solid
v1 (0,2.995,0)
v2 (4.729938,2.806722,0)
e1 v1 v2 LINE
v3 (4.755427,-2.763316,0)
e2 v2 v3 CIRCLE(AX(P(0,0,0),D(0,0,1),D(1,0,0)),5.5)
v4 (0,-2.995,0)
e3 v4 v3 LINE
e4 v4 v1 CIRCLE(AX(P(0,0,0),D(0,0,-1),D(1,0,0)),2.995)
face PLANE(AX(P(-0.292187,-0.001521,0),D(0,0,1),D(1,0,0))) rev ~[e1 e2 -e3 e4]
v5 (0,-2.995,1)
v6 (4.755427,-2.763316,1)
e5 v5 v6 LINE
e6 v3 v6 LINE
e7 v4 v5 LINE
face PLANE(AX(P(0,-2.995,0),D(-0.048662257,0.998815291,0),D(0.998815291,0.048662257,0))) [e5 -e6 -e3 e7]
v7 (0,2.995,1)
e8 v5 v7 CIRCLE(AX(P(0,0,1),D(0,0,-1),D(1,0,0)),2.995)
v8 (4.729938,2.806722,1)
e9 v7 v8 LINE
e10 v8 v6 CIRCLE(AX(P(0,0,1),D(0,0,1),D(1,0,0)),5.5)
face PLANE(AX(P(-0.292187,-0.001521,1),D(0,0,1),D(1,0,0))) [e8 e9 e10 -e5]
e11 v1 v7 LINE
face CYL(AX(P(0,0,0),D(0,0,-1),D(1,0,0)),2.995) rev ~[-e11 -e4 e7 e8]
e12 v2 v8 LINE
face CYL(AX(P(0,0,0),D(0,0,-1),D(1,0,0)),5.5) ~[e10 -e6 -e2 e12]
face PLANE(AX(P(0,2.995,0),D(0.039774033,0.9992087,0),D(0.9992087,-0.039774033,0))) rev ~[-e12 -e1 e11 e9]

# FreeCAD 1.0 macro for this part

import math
import FreeCAD as App
import Part
import Sketcher
Q = App.Units.Quantity

doc = App.newDocument("Part")
body = doc.addObject("PartDesign::Body", "Body")

sketch1 = body.newObject("Sketcher::SketchObject", "Sketch")
sketch1.AttachmentSupport = (doc.getObject("XY_Plane"), [""])
sketch1.MapMode = "FlatFace"
sketch1.addGeometry(Part.ArcOfCircle(Part.Circle(App.Vector(0, 0, 0), App.Vector(0, 0, 1), 3), math.radians(90), math.radians(270)), False)
sketch1.addGeometry(Part.LineSegment(App.Vector(0, 3, 0), App.Vector(4.7, 2.8, 0)), False)
sketch1.addGeometry(Part.ArcOfCircle(Part.Circle(App.Vector(0, 0, 0), App.Vector(0, 0, 1), 5.5), math.radians(31), math.radians(330)), False)
sketch1.addGeometry(Part.LineSegment(App.Vector(4.8, -2.8, 0), App.Vector(0, -3, 0)), False)
sketch1.addConstraint(Sketcher.Constraint("Coincident", 0, 1, 1, 1))
sketch1.addConstraint(Sketcher.Constraint("Coincident", 1, 2, 2, 1))
sketch1.addConstraint(Sketcher.Constraint("Coincident", 2, 2, 3, 1))
sketch1.addConstraint(Sketcher.Constraint("Coincident", 3, 2, 0, 2))
sketch1.addConstraint(Sketcher.Constraint("Coincident", 0, 3, -1, 1))
sketch1.addConstraint(Sketcher.Constraint("Coincident", 2, 3, -1, 1))
sketch1.addConstraint(Sketcher.Constraint("PointOnObject", 0, 1, -2))
sketch1.addConstraint(Sketcher.Constraint("PointOnObject", 3, 2, -2))
sketch1.addConstraint(Sketcher.Constraint("Radius", 2, 5.5))
sketch1.addConstraint(Sketcher.Constraint("Radius", 0, 2.995))
sketch1.addConstraint(Sketcher.Constraint("Angle", 1, Q("-2.2798 deg")))
sketch1.addConstraint(Sketcher.Constraint("Angle", 3, Q("-177.2106 deg")))
pad1 = body.newObject("PartDesign::Pad", "Pad")
pad1.Profile = sketch1
pad1.Length = 1

doc.recompute()
